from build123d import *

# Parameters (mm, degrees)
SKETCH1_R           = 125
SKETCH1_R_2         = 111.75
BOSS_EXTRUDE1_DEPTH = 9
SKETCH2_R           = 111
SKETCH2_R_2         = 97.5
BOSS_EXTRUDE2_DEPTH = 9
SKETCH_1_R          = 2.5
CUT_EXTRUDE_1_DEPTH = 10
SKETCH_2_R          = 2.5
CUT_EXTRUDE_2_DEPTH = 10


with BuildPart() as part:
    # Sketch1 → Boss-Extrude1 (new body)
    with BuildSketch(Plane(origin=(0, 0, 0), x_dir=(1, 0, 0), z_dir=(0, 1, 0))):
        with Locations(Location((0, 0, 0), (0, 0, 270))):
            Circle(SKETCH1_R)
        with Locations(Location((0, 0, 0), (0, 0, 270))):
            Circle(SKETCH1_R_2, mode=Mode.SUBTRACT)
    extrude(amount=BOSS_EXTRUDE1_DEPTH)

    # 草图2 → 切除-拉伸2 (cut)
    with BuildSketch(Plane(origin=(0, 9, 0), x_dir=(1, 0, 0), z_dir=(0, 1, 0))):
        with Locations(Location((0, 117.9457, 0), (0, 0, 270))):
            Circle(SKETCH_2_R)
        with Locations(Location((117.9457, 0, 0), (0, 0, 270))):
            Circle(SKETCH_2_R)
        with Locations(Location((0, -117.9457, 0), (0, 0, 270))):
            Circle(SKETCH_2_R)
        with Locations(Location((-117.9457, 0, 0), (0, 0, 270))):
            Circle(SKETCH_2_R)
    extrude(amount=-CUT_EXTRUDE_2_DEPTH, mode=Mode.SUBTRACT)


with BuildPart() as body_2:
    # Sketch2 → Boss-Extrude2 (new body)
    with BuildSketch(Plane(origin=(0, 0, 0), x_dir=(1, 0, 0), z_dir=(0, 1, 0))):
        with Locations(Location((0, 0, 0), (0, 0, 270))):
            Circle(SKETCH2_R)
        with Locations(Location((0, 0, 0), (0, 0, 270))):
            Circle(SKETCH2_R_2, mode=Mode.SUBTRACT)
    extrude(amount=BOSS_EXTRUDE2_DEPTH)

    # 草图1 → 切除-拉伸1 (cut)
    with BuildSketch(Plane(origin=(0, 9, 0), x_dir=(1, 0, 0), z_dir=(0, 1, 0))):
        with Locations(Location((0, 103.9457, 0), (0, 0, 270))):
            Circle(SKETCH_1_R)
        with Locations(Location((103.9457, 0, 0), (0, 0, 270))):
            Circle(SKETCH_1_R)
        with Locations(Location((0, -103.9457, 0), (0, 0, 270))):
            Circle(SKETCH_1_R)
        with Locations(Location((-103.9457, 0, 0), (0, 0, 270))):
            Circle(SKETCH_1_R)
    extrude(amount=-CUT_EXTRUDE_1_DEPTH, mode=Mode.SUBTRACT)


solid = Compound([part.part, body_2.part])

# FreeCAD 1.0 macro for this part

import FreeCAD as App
import Part
import Sketcher
Q = App.Units.Quantity

doc = App.newDocument("Part")
body = doc.addObject("PartDesign::Body", "Body")

sketch1 = body.newObject("Sketcher::SketchObject", "Sketch")
sketch1.AttachmentSupport = (doc.getObject("XZ_Plane"), [""])
sketch1.MapMode = "FlatFace"
sketch1.addGeometry(Part.Circle(App.Vector(0, 0, 0), App.Vector(0, 0, 1), 125), False)
sketch1.addGeometry(Part.Circle(App.Vector(0, 0, 0), App.Vector(0, 0, 1), 112), False)
sketch1.addConstraint(Sketcher.Constraint("Coincident", 0, 3, -1, 1))
sketch1.addConstraint(Sketcher.Constraint("Coincident", 1, 3, -1, 1))
sketch1.addConstraint(Sketcher.Constraint("Diameter", 0, Q("250 mm")))
sketch1.addConstraint(Sketcher.Constraint("Diameter", 1, Q("223.5 mm")))
pad1 = body.newObject("PartDesign::Pad", "Pad")
pad1.Profile = sketch1
pad1.Length = 9
pad1.Reversed = True

sketch2 = body.newObject("Sketcher::SketchObject", "Sketch001")
sketch2.AttachmentSupport = (doc.getObject("XZ_Plane"), [""])
sketch2.MapMode = "FlatFace"
sketch2.AttachmentOffset = App.Placement(App.Vector(0, 0, -9), App.Rotation())
sketch2.addGeometry(Part.Circle(App.Vector(0, -117.9, 0), App.Vector(0, 0, 1), 2.5), False)
sketch2.addGeometry(Part.Circle(App.Vector(117.9, 0, 0), App.Vector(0, 0, 1), 2.5), False)
sketch2.addGeometry(Part.Circle(App.Vector(0, 117.9, 0), App.Vector(0, 0, 1), 2.5), False)
sketch2.addGeometry(Part.Circle(App.Vector(-117.9, 0, 0), App.Vector(0, 0, 1), 2.5), False)
sketch2.addConstraint(Sketcher.Constraint("Equal", 0, 1))
sketch2.addConstraint(Sketcher.Constraint("Equal", 1, 2))
sketch2.addConstraint(Sketcher.Constraint("Equal", 2, 3))
sketch2.addConstraint(Sketcher.Constraint("Symmetric", 0, 3, 2, 3, -1, 1))
sketch2.addConstraint(Sketcher.Constraint("Symmetric", 1, 3, 3, 3, -1, 1))
sketch2.addConstraint(Sketcher.Constraint("PointOnObject", 0, 3, -2))
sketch2.addConstraint(Sketcher.Constraint("PointOnObject", 1, 3, -1))
sketch2.addConstraint(Sketcher.Constraint("Diameter", 0, Q("5 mm")))
sketch2.addConstraint(Sketcher.Constraint("DistanceY", 0, 3, -1, 1, Q("117.9457 mm")))
sketch2.addConstraint(Sketcher.Constraint("DistanceX", -1, 1, 1, 3, Q("117.9457 mm")))
pocket1 = body.newObject("PartDesign::Pocket", "Pocket")
pocket1.Profile = sketch2
pocket1.Length = 10
pocket1.Reversed = True
body2 = doc.addObject("PartDesign::Body", "Body001")

sketch3 = body2.newObject("Sketcher::SketchObject", "Sketch002")
sketch3.AttachmentSupport = (doc.getObject("XZ_Plane001"), [""])
sketch3.MapMode = "FlatFace"
sketch3.addGeometry(Part.Circle(App.Vector(0, 0, 0), App.Vector(0, 0, 1), 111), False)
sketch3.addGeometry(Part.Circle(App.Vector(0, 0, 0), App.Vector(0, 0, 1), 98), False)
sketch3.addConstraint(Sketcher.Constraint("Coincident", 0, 3, -1, 1))
sketch3.addConstraint(Sketcher.Constraint("Coincident", 1, 3, -1, 1))
sketch3.addConstraint(Sketcher.Constraint("Diameter", 0, Q("222 mm")))
sketch3.addConstraint(Sketcher.Constraint("Diameter", 1, Q("195 mm")))
pad2 = body2.newObject("PartDesign::Pad", "Pad001")
pad2.Profile = sketch3
pad2.Length = 9
pad2.Reversed = True

sketch4 = body2.newObject("Sketcher::SketchObject", "Sketch003")
sketch4.AttachmentSupport = (doc.getObject("XZ_Plane001"), [""])
sketch4.MapMode = "FlatFace"
sketch4.AttachmentOffset = App.Placement(App.Vector(0, 0, -9), App.Rotation())
sketch4.addGeometry(Part.Circle(App.Vector(0, -103.9, 0), App.Vector(0, 0, 1), 2.5), False)
sketch4.addGeometry(Part.Circle(App.Vector(103.9, 0, 0), App.Vector(0, 0, 1), 2.5), False)
sketch4.addGeometry(Part.Circle(App.Vector(0, 103.9, 0), App.Vector(0, 0, 1), 2.5), False)
sketch4.addGeometry(Part.Circle(App.Vector(-103.9, 0, 0), App.Vector(0, 0, 1), 2.5), False)
sketch4.addConstraint(Sketcher.Constraint("Equal", 0, 1))
sketch4.addConstraint(Sketcher.Constraint("Equal", 1, 2))
sketch4.addConstraint(Sketcher.Constraint("Equal", 2, 3))
sketch4.addConstraint(Sketcher.Constraint("Symmetric", 0, 3, 2, 3, -1, 1))
sketch4.addConstraint(Sketcher.Constraint("Symmetric", 1, 3, 3, 3, -1, 1))
sketch4.addConstraint(Sketcher.Constraint("PointOnObject", 0, 3, -2))
sketch4.addConstraint(Sketcher.Constraint("PointOnObject", 1, 3, -1))
sketch4.addConstraint(Sketcher.Constraint("Diameter", 0, Q("5 mm")))
sketch4.addConstraint(Sketcher.Constraint("DistanceY", 0, 3, -1, 1, Q("103.9457 mm")))
sketch4.addConstraint(Sketcher.Constraint("DistanceX", -1, 1, 1, 3, Q("103.9457 mm")))
pocket2 = body2.newObject("PartDesign::Pocket", "Pocket001")
pocket2.Profile = sketch4
pocket2.Length = 10
pocket2.Reversed = True

doc.recompute()
